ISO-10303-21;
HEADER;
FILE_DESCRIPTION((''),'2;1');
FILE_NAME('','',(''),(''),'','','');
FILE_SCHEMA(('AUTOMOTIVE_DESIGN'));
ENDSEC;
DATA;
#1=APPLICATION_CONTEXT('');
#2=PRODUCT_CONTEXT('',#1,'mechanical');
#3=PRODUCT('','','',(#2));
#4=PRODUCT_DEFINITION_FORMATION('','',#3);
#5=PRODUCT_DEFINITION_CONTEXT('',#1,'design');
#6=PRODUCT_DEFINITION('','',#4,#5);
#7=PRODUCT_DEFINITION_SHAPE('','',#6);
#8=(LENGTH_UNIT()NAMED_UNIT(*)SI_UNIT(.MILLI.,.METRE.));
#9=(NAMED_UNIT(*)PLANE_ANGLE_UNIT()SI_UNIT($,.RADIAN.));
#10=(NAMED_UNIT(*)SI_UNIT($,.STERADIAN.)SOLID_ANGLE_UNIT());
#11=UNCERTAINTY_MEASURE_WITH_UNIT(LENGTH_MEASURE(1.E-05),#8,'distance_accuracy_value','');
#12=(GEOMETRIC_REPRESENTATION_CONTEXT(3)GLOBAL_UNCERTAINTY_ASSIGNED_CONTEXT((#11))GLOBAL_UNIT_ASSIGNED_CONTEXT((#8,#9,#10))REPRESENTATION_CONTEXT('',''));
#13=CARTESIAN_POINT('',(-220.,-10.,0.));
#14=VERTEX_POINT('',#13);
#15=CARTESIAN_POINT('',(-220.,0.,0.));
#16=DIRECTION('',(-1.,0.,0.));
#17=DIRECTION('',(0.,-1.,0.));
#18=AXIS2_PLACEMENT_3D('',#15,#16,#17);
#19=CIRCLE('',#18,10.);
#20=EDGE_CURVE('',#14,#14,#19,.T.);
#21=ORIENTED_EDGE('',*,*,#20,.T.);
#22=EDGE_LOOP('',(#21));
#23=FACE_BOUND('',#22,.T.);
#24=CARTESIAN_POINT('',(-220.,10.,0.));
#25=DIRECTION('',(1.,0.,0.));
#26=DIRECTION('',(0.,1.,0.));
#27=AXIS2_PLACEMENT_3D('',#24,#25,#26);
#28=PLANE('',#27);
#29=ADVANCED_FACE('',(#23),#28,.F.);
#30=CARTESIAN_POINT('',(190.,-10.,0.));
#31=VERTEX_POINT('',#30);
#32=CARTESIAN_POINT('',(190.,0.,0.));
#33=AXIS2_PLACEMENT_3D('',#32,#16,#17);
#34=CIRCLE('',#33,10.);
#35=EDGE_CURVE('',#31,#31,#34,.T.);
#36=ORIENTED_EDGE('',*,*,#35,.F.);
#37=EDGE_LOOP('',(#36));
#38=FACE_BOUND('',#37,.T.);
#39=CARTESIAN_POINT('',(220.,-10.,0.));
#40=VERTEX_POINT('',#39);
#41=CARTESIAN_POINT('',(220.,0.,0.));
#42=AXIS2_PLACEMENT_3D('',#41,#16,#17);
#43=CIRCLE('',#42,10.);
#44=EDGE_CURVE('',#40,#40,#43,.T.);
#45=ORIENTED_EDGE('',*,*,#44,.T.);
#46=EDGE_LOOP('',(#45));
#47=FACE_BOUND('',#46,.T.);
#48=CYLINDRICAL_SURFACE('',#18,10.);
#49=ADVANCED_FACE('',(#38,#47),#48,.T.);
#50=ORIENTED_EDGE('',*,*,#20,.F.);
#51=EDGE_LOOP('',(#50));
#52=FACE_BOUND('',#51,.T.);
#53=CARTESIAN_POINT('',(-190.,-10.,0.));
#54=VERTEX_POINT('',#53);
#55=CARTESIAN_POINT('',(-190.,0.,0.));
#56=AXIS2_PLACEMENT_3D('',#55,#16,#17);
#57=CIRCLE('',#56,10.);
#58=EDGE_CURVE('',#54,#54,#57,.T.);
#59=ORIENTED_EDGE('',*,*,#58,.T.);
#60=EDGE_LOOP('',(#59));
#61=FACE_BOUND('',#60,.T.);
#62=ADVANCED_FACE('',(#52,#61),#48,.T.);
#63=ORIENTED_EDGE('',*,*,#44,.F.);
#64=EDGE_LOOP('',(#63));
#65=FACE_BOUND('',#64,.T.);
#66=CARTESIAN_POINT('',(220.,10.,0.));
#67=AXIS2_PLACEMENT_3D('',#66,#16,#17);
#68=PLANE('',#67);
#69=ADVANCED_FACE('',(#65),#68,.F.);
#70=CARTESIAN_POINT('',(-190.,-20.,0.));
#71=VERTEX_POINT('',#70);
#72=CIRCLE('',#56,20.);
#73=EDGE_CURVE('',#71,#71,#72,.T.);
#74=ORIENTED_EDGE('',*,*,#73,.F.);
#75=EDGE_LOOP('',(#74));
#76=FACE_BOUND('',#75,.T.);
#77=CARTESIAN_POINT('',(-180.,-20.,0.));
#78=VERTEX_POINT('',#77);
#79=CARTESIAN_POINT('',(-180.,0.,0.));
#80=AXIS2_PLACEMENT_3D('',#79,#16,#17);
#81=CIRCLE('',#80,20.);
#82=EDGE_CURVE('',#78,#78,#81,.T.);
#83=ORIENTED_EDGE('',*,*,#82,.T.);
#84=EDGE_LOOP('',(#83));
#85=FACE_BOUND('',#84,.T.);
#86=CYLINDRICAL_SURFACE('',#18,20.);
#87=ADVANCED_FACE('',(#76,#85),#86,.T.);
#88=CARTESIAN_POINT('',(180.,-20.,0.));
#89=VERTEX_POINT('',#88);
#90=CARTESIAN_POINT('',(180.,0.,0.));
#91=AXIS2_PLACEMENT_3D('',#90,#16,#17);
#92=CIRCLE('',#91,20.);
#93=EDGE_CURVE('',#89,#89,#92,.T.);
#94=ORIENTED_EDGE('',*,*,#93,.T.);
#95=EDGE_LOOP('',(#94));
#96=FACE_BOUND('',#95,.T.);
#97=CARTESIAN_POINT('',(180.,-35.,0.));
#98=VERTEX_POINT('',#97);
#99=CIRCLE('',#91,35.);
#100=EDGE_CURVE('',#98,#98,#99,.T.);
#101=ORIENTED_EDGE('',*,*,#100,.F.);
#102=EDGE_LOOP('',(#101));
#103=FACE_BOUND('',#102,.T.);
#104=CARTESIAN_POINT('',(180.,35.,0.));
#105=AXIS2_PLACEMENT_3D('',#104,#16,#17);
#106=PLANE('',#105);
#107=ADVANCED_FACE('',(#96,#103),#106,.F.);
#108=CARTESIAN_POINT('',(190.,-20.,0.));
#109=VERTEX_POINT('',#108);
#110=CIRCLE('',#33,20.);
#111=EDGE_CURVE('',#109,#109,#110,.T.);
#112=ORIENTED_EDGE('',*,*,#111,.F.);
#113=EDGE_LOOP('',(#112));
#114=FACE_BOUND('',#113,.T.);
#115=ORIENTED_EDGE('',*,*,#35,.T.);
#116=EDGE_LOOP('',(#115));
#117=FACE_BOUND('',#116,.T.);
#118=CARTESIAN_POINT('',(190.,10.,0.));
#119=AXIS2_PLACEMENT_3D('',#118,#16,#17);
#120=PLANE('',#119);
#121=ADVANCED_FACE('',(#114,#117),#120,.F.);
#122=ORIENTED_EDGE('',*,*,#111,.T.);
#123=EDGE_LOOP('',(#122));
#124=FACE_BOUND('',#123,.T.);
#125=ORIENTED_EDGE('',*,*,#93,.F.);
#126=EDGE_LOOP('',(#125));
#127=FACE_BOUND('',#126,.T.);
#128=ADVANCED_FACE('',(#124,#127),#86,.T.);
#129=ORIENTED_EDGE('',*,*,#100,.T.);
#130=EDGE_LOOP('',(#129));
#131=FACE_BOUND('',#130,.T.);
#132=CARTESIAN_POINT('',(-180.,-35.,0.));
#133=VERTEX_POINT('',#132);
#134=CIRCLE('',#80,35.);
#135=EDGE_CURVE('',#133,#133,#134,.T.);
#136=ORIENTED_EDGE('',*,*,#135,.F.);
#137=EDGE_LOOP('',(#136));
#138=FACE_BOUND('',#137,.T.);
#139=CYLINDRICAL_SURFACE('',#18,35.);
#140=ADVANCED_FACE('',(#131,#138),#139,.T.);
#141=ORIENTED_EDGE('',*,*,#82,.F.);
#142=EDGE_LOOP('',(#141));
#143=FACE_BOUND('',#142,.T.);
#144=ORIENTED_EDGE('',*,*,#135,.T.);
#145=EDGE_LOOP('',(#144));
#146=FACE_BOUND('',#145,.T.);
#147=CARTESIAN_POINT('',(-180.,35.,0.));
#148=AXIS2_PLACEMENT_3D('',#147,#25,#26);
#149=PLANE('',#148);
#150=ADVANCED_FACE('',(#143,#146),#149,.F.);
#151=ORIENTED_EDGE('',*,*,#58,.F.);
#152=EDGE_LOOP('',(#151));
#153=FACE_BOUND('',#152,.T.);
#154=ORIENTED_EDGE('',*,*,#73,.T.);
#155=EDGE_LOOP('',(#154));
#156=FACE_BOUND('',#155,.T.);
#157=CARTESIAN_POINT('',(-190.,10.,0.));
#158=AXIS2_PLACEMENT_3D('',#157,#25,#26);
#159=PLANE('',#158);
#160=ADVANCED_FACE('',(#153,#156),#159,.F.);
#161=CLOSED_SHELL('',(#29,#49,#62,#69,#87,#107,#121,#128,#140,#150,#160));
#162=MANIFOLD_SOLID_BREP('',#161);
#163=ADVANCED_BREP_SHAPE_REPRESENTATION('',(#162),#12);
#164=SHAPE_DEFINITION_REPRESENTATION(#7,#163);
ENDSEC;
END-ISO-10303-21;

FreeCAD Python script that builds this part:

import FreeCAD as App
import Part
import Sketcher
Q = App.Units.Quantity

doc = App.newDocument("Part")
body = doc.addObject("PartDesign::Body", "Body")

# Sketch on XY plane
sketch1 = body.newObject("Sketcher::SketchObject", "Sketch")
sketch1.AttachmentSupport = (doc.getObject("XY_Plane"), [""])
sketch1.MapMode = "FlatFace"
sketch1.addGeometry([
    Part.LineSegment(App.Vector(180, 35, 0), App.Vector(-180, 35, 0)),  # 0
    Part.LineSegment(App.Vector(-180, 35, 0), App.Vector(-180, 20, 0)),  # 1
    Part.LineSegment(App.Vector(-180, 20, 0), App.Vector(-190, 20, 0)),  # 2
    Part.LineSegment(App.Vector(-190, 20, 0), App.Vector(-190, 10, 0)),  # 3
    Part.LineSegment(App.Vector(-190, 10, 0), App.Vector(-220, 10, 0)),  # 4
    Part.LineSegment(App.Vector(-220, 10, 0), App.Vector(-220, 0, 0)),  # 5
    Part.LineSegment(App.Vector(-220, 0, 0), App.Vector(220, 0, 0)),  # 6
    Part.LineSegment(App.Vector(220, 0, 0), App.Vector(220, 10, 0)),  # 7
    Part.LineSegment(App.Vector(220, 10, 0), App.Vector(190, 10, 0)),  # 8
    Part.LineSegment(App.Vector(190, 10, 0), App.Vector(190, 20, 0)),  # 9
    Part.LineSegment(App.Vector(190, 20, 0), App.Vector(180, 20, 0)),  # 10
    Part.LineSegment(App.Vector(180, 20, 0), App.Vector(180, 35, 0)),  # 11
], False)
sketch1.addConstraint([
    Sketcher.Constraint("Coincident", 0, 2, 1, 1),
    Sketcher.Constraint("Coincident", 1, 2, 2, 1),
    Sketcher.Constraint("Coincident", 2, 2, 3, 1),
    Sketcher.Constraint("Coincident", 3, 2, 4, 1),
    Sketcher.Constraint("Coincident", 4, 2, 5, 1),
    Sketcher.Constraint("Coincident", 5, 2, 6, 1),
    Sketcher.Constraint("Coincident", 6, 2, 7, 1),
    Sketcher.Constraint("Coincident", 7, 2, 8, 1),
    Sketcher.Constraint("Coincident", 8, 2, 9, 1),
    Sketcher.Constraint("Coincident", 9, 2, 10, 1),
    Sketcher.Constraint("Coincident", 10, 2, 11, 1),
    Sketcher.Constraint("Coincident", 11, 2, 0, 1),
    Sketcher.Constraint("Horizontal", 0),
    Sketcher.Constraint("Vertical", 1),
    Sketcher.Constraint("Horizontal", 2),
    Sketcher.Constraint("Vertical", 3),
    Sketcher.Constraint("Horizontal", 4),
    Sketcher.Constraint("Vertical", 5),
    Sketcher.Constraint("Horizontal", 6),
    Sketcher.Constraint("Vertical", 7),
    Sketcher.Constraint("Horizontal", 8),
    Sketcher.Constraint("Vertical", 9),
    Sketcher.Constraint("Horizontal", 10),
    Sketcher.Constraint("Vertical", 11),
    Sketcher.Constraint("Symmetric", 5, 2, 6, 2, -1, 1),
    Sketcher.Constraint("Symmetric", 3, 2, 8, 2, -2),
    Sketcher.Constraint("Symmetric", 1, 2, 10, 2, -2),
    Sketcher.Constraint("Equal", 10, 3),
    Sketcher.Constraint("Equal", 3, 5),
    Sketcher.Constraint("DistanceX", 0, 2, 0, 1, Q("360 mm")),
    Sketcher.Constraint("DistanceX", 2, 2, 2, 1, Q("10 mm")),
    Sketcher.Constraint("DistanceX", 4, 2, 4, 1, Q("30 mm")),
    Sketcher.Constraint("DistanceY", 1, 2, 1, 1, Q("15 mm")),
])
revolution = body.newObject("PartDesign::Revolution", "Revolution")
revolution.Profile = sketch1
revolution.ReferenceAxis = (sketch1, ["H_Axis"])
revolution.Angle = 360

doc.recompute()
